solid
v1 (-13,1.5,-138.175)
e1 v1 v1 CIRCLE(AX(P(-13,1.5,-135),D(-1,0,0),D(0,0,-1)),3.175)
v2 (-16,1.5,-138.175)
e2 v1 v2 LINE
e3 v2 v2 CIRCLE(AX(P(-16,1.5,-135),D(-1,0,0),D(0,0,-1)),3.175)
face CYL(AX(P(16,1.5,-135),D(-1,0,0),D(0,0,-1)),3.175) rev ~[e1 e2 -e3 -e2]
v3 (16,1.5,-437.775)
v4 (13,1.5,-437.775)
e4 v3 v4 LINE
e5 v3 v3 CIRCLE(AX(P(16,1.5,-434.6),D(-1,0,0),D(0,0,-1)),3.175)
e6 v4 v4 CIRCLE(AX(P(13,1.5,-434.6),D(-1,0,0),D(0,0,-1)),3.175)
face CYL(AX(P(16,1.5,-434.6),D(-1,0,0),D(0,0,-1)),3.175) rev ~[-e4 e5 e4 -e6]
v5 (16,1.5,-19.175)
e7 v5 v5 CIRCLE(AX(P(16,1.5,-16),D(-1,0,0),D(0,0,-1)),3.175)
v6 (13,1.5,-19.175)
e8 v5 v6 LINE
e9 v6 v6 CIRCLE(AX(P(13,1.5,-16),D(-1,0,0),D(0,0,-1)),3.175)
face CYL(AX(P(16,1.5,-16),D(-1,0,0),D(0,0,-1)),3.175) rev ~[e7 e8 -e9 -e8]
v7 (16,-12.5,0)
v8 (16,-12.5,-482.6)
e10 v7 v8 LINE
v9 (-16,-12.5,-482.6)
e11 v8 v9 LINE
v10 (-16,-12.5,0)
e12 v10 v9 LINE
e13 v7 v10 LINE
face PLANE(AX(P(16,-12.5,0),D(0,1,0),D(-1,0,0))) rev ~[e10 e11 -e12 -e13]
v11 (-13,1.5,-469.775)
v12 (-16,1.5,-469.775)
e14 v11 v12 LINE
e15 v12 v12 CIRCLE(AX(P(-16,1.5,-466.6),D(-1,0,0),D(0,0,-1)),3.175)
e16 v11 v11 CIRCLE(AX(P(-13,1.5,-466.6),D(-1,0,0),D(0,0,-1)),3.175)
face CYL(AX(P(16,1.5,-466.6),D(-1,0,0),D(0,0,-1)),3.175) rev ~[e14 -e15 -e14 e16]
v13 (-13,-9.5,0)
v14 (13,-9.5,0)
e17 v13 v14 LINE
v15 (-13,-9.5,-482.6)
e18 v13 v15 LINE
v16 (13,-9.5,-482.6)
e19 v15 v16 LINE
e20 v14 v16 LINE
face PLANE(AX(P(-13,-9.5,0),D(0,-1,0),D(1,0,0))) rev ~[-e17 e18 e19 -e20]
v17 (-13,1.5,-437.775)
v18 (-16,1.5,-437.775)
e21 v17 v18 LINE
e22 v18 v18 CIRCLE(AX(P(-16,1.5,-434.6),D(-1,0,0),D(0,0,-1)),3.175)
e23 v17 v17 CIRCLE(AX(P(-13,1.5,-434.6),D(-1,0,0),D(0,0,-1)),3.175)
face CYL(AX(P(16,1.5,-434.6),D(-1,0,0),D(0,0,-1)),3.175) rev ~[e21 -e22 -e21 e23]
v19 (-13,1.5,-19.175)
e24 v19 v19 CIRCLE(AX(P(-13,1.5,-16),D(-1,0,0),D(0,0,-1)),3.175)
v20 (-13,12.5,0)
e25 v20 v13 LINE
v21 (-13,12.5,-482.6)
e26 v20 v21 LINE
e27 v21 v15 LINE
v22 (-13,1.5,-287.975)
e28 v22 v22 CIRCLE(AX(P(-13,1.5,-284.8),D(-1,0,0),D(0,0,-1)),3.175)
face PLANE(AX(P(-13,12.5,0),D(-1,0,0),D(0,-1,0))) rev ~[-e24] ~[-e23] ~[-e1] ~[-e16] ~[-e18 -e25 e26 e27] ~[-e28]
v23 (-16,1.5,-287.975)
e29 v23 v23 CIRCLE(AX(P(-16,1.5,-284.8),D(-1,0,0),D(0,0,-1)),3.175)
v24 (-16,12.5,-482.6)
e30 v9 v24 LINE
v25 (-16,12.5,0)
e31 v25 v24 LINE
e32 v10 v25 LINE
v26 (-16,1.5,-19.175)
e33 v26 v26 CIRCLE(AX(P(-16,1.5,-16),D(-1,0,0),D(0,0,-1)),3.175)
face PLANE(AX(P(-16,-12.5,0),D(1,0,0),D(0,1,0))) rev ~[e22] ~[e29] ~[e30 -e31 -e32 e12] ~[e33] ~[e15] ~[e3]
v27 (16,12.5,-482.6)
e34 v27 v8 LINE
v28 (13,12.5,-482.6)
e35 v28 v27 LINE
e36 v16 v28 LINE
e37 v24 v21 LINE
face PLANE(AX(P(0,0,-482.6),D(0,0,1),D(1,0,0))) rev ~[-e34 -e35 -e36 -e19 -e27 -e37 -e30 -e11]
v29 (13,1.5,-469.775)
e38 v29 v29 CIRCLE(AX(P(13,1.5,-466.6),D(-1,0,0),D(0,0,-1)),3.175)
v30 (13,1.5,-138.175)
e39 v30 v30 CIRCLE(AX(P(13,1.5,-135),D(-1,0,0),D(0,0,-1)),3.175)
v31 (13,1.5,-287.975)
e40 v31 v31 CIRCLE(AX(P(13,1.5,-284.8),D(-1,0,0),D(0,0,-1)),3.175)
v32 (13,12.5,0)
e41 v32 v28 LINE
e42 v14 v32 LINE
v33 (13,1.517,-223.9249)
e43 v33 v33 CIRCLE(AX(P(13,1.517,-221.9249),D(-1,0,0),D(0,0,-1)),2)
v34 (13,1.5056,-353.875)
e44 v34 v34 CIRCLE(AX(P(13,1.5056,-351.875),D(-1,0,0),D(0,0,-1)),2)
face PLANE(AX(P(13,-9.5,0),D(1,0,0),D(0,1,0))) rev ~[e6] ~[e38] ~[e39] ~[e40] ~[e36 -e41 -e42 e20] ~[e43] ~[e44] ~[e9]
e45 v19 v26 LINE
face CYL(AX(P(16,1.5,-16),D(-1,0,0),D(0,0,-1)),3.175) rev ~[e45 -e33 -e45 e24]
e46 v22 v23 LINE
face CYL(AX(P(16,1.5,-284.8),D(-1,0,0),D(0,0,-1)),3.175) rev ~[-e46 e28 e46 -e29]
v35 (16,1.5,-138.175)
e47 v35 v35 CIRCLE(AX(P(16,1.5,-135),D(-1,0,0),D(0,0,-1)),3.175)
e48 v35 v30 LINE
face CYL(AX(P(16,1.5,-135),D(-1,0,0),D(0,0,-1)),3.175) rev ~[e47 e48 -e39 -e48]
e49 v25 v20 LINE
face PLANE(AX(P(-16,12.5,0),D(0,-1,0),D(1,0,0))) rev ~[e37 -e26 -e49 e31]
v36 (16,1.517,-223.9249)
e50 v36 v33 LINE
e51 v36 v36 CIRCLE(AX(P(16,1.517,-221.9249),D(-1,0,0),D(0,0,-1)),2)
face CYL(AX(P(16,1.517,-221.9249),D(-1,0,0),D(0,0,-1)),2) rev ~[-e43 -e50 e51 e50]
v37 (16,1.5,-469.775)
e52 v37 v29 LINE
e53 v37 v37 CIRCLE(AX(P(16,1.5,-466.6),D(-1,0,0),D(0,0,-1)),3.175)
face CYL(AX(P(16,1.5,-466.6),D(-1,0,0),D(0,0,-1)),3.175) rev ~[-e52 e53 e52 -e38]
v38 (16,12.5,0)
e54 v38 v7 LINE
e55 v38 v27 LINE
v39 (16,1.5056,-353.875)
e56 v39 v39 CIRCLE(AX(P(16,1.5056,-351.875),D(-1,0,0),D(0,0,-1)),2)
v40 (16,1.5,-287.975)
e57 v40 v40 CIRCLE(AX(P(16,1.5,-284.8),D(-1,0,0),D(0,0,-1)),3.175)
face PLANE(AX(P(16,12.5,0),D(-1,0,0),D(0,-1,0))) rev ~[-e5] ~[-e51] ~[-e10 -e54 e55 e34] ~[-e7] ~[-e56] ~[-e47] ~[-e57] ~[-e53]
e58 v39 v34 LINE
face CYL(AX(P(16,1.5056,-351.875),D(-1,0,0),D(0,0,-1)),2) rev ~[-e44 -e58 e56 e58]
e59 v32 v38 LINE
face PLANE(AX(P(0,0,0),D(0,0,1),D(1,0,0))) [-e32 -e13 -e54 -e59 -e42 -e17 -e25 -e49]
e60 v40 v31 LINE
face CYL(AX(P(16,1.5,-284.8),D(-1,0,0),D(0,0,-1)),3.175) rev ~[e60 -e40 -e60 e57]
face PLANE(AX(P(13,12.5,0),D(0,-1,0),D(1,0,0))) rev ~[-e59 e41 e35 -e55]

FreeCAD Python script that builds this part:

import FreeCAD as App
import Part
import Sketcher
from FreeCAD import Vector

doc = App.newDocument("Part")
body = doc.addObject("PartDesign::Body", "Body")

sketch1 = doc.addObject("Sketcher::SketchObject", "Sketch")
body.addObject(sketch1)
sketch1.AttachmentSupport = (doc.XY_Plane, [""])
sketch1.MapMode = "FlatFace"
sketch1.addGeometry(Part.LineSegment(Vector(-13, 12.5, 0), Vector(-16, 12.5, 0)), False)
sketch1.addGeometry(Part.LineSegment(Vector(-16, 12.5, 0), Vector(-16, -12.5, 0)), False)
sketch1.addGeometry(Part.LineSegment(Vector(-16, -12.5, 0), Vector(16, -12.5, 0)), False)
sketch1.addGeometry(Part.LineSegment(Vector(16, -12.5, 0), Vector(16, 12.5, 0)), False)
sketch1.addGeometry(Part.LineSegment(Vector(16, 12.5, 0), Vector(13, 12.5, 0)), False)
sketch1.addGeometry(Part.LineSegment(Vector(13, 12.5, 0), Vector(13, -9.5, 0)), False)
sketch1.addGeometry(Part.LineSegment(Vector(13, -9.5, 0), Vector(-13, -9.5, 0)), False)
sketch1.addGeometry(Part.LineSegment(Vector(-13, -9.5, 0), Vector(-13, 12.5, 0)), False)
sketch1.addConstraint(Sketcher.Constraint("Coincident", 0, 2, 1, 1))
sketch1.addConstraint(Sketcher.Constraint("Coincident", 1, 2, 2, 1))
sketch1.addConstraint(Sketcher.Constraint("Coincident", 2, 2, 3, 1))
sketch1.addConstraint(Sketcher.Constraint("Coincident", 3, 2, 4, 1))
sketch1.addConstraint(Sketcher.Constraint("Coincident", 4, 2, 5, 1))
sketch1.addConstraint(Sketcher.Constraint("Coincident", 5, 2, 6, 1))
sketch1.addConstraint(Sketcher.Constraint("Coincident", 6, 2, 7, 1))
sketch1.addConstraint(Sketcher.Constraint("Coincident", 7, 2, 0, 1))
sketch1.addConstraint(Sketcher.Constraint("Horizontal", 0))
sketch1.addConstraint(Sketcher.Constraint("Vertical", 1))
sketch1.addConstraint(Sketcher.Constraint("Horizontal", 2))
sketch1.addConstraint(Sketcher.Constraint("Vertical", 3))
sketch1.addConstraint(Sketcher.Constraint("Horizontal", 4))
sketch1.addConstraint(Sketcher.Constraint("Vertical", 5))
sketch1.addConstraint(Sketcher.Constraint("Horizontal", 6))
sketch1.addConstraint(Sketcher.Constraint("Vertical", 7))
sketch1.addConstraint(Sketcher.Constraint("Symmetric", 0, 2, 2, 2, -1, 1))
sketch1.addConstraint(Sketcher.Constraint("Symmetric", 4, 2, 7, 2, -2))
sketch1.addConstraint(Sketcher.Constraint("DistanceX", 0, 2, 0, 1, 3.0))
sketch1.addConstraint(Sketcher.Constraint("DistanceX", 2, 1, 2, 2, 32.0))
sketch1.addConstraint(Sketcher.Constraint("DistanceY", 1, 2, 1, 1, 25.0))
sketch1.addConstraint(Sketcher.Constraint("DistanceY", 2, 2, 5, 2, 3.0))
pad1 = doc.addObject("PartDesign::Pad", "Pad")
body.addObject(pad1)
pad1.Profile = sketch1
pad1.Length = 482.6
pad1.Reversed = True

sketch2 = doc.addObject("Sketcher::SketchObject", "Sketch001")
body.addObject(sketch2)
sketch2.AttachmentSupport = (doc.YZ_Plane, [""])
sketch2.MapMode = "FlatFace"
sketch2.AttachmentOffset = App.Placement(Vector(0, 0, 16), App.Rotation())
sketch2.addGeometry(Part.Circle(Vector(1.5, -16, 0), Vector(0, 0, 1), 3.2), False)
sketch2.addGeometry(Part.Circle(Vector(1.5, -466.6, 0), Vector(0, 0, 1), 3.2), False)
sketch2.addGeometry(Part.Circle(Vector(1.5, -135, 0), Vector(0, 0, 1), 3.2), False)
sketch2.addGeometry(Part.Circle(Vector(1.5, -434.6, 0), Vector(0, 0, 1), 3.2), False)
sketch2.addGeometry(Part.Circle(Vector(1.5, -284.8, 0), Vector(0, 0, 1), 3.2), False)
sketch2.addConstraint(Sketcher.Constraint("Equal", 0, 1))
sketch2.addConstraint(Sketcher.Constraint("Equal", 1, 2))
sketch2.addConstraint(Sketcher.Constraint("Equal", 2, 3))
sketch2.addConstraint(Sketcher.Constraint("Equal", 3, 4))
sketch2.addConstraint(Sketcher.Constraint("Vertical", 0, 3, 1, 3))
sketch2.addConstraint(Sketcher.Constraint("Vertical", 1, 3, 2, 3))
sketch2.addConstraint(Sketcher.Constraint("Vertical", 2, 3, 3, 3))
sketch2.addConstraint(Sketcher.Constraint("Vertical", 3, 3, 4, 3))
sketch2.addConstraint(Sketcher.Constraint("Diameter", 0, 6.35))
sketch2.addConstraint(Sketcher.Constraint("DistanceY", 0, 3, -1, 1, 16.0))
sketch2.addConstraint(Sketcher.Constraint("DistanceY", 2, 3, -1, 1, 135.0))
sketch2.addConstraint(Sketcher.Constraint("DistanceY", 1, 3, 3, 3, 32.0))
sketch2.addConstraint(Sketcher.Constraint("DistanceX", -1, 1, 0, 3, 1.5))
sketch2.addConstraint(Sketcher.Constraint("DistanceY", 1, 3, -1, 1, 466.6))
sketch2.addConstraint(Sketcher.Constraint("DistanceY", 4, 3, -1, 1, 284.8))
doc.recompute()
hole = doc.addObject("PartDesign::Hole", "Hole")
body.addObject(hole)
hole.Profile = sketch2
hole.ThreadType = "None"
hole.Diameter = 6.35
hole.DepthType = "ThroughAll"

sketch3 = doc.addObject("Sketcher::SketchObject", "Sketch002")
body.addObject(sketch3)
sketch3.AttachmentSupport = (doc.YZ_Plane, [""])
sketch3.MapMode = "FlatFace"
sketch3.AttachmentOffset = App.Placement(Vector(0, 0, 16), App.Rotation())
sketch3.addGeometry(Part.Circle(Vector(1.5, -351.9, 0), Vector(0, 0, 1), 2), False)
sketch3.addGeometry(Part.Circle(Vector(1.5, -221.9, 0), Vector(0, 0, 1), 2), False)
sketch3.addConstraint(Sketcher.Constraint("Equal", 0, 1))
sketch3.addConstraint(Sketcher.Constraint("Diameter", 0, 4.0))
sketch3.addConstraint(Sketcher.Constraint("DistanceY", 0, 3, 1, 3, 129.95))
sketch3.addConstraint(Sketcher.Constraint("DistanceY", 0, 3, -1, 1, 351.875))
sketch3.addConstraint(Sketcher.Constraint("DistanceX", -1, 1, 1, 3, 1.517))
sketch3.addConstraint(Sketcher.Constraint("DistanceX", -1, 1, 0, 3, 1.5056))
doc.recompute()
hole2 = doc.addObject("PartDesign::Hole", "Hole001")
body.addObject(hole2)
hole2.Profile = sketch3
hole2.ThreadType = "None"
hole2.Diameter = 4
hole2.DepthType = "Dimension"
hole2.Depth = 3
hole2.DrillPoint = "Angled"
hole2.DrillPointAngle = 118

doc.recompute()
